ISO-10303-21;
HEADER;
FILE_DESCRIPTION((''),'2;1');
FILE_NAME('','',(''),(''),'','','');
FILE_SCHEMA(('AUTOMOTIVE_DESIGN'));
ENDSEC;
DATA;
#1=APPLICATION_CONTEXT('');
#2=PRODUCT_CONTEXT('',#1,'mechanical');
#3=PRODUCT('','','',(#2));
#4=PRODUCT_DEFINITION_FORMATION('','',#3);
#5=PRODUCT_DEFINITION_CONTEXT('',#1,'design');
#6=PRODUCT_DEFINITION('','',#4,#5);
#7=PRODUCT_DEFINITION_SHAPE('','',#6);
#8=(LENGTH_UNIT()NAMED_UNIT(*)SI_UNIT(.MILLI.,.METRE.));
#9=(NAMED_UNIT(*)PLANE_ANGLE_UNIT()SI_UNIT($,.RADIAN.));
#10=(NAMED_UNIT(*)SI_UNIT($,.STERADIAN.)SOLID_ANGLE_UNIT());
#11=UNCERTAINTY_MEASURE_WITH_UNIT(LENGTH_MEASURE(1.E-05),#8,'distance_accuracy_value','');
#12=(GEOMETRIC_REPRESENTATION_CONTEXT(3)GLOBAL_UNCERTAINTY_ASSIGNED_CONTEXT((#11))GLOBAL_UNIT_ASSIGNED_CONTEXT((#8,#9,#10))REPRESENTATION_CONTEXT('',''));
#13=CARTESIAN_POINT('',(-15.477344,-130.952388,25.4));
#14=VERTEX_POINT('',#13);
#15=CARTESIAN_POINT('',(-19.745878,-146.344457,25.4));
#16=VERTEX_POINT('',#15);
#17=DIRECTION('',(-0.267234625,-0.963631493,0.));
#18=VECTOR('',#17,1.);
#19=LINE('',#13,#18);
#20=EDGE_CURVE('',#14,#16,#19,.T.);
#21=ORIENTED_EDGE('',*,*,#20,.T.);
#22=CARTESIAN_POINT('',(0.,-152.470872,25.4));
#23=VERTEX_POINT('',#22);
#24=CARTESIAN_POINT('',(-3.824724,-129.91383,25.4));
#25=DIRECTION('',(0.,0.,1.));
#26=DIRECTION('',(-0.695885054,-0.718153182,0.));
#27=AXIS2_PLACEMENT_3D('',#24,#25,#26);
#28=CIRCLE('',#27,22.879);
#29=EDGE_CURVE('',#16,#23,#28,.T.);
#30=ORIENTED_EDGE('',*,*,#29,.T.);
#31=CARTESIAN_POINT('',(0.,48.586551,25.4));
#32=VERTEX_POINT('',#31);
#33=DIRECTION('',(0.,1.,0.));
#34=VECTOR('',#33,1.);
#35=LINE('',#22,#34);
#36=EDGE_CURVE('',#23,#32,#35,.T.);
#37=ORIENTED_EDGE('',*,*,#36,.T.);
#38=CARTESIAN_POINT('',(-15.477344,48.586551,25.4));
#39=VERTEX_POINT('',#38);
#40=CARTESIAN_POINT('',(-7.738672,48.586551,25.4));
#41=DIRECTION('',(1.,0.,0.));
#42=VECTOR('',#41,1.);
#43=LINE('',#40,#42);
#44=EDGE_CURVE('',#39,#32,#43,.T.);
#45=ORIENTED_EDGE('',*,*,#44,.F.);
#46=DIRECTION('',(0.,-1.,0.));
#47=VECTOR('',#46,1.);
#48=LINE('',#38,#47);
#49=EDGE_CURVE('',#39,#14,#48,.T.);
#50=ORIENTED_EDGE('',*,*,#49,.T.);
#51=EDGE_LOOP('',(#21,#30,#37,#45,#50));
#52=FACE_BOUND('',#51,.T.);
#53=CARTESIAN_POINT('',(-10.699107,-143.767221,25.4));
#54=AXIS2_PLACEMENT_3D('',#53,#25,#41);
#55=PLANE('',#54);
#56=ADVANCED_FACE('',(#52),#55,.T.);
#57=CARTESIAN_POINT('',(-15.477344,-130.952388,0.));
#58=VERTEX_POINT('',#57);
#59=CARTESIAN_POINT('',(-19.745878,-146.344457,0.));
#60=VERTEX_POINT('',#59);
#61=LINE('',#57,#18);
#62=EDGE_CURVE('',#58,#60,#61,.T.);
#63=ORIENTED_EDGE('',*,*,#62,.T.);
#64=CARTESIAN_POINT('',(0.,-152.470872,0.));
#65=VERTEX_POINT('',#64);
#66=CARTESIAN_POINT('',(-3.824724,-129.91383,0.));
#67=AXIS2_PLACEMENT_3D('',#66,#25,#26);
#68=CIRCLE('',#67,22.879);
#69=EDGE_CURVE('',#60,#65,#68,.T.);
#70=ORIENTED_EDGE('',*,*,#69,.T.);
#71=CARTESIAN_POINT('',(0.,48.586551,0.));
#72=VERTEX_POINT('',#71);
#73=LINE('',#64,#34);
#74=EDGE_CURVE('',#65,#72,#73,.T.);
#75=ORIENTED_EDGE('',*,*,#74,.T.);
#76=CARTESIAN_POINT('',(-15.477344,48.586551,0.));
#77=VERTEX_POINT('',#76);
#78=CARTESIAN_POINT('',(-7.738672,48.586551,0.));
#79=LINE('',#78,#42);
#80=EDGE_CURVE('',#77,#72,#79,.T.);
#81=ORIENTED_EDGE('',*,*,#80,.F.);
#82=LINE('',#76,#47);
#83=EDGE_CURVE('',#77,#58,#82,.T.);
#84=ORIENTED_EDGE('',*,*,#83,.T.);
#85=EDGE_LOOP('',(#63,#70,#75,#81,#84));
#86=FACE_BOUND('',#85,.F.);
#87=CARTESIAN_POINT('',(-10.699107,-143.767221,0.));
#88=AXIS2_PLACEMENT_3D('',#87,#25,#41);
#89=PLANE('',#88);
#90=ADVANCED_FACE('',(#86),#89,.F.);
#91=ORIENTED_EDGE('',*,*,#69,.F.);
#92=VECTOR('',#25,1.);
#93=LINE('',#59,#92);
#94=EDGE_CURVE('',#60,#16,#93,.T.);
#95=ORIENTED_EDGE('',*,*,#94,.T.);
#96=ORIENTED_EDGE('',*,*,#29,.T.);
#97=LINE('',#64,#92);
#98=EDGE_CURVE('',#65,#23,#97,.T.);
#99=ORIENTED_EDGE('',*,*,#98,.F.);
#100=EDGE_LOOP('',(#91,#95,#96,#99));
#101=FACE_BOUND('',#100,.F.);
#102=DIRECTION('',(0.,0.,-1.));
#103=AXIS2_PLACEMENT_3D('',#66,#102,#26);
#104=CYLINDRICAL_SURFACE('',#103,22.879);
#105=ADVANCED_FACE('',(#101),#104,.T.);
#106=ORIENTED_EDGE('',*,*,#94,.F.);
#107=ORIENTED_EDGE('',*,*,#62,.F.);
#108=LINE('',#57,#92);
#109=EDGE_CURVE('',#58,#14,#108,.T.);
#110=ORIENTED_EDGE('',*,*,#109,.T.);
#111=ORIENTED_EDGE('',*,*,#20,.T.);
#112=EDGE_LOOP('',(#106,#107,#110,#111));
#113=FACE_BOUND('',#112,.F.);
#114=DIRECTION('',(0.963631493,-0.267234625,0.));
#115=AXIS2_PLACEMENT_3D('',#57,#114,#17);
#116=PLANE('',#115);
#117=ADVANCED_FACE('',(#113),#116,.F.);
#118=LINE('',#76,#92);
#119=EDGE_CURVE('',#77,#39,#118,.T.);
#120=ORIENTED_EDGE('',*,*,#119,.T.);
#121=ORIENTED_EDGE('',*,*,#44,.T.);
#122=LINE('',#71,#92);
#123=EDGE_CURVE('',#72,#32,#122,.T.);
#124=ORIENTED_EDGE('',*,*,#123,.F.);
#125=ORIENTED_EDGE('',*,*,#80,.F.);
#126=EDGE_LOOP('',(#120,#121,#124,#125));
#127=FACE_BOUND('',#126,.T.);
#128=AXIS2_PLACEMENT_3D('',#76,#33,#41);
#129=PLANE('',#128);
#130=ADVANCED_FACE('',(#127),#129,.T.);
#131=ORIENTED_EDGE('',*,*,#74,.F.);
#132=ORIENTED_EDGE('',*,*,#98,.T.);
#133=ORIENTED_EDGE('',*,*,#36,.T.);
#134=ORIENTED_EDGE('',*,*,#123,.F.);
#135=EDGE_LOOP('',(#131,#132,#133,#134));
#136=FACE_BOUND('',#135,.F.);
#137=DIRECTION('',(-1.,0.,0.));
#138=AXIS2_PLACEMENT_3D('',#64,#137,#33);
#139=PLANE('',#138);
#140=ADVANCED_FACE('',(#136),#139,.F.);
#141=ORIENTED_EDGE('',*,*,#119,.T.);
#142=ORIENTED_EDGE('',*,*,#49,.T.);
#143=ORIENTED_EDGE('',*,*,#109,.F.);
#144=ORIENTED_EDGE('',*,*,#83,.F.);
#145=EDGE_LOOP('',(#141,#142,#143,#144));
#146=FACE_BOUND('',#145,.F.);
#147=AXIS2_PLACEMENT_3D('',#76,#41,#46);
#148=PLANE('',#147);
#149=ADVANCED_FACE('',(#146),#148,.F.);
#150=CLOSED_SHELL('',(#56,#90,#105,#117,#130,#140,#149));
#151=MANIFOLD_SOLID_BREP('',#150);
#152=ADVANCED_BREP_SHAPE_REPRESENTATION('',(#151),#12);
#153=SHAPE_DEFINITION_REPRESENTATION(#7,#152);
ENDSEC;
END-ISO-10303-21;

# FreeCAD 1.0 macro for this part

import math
import FreeCAD as App
import Part
import Sketcher
Q = App.Units.Quantity

doc = App.newDocument("Part")
body = doc.addObject("PartDesign::Body", "Body")

# Sketch on XY plane
sketch1 = body.newObject("Sketcher::SketchObject", "Sketch")
sketch1.AttachmentSupport = (doc.getObject("XY_Plane"), [""])
sketch1.MapMode = "FlatFace"
sketch1.addGeometry([
    Part.LineSegment(App.Vector(-15, -131, 0), App.Vector(-20, -146, 0)),  # 0
    Part.ArcOfCircle(Part.Circle(App.Vector(-4, -130, 0), App.Vector(0, 0, 1), 23), math.radians(-134), math.radians(-80)),  # 1
    Part.LineSegment(App.Vector(0, -152, 0), App.Vector(0, 49, 0)),  # 2
    Part.LineSegment(App.Vector(0, 49, 0), App.Vector(-15, 49, 0)),  # 3
    Part.LineSegment(App.Vector(-15, 49, 0), App.Vector(-15, -131, 0)),  # 4
], False)
sketch1.addConstraint([
    Sketcher.Constraint("Coincident", 0, 2, 1, 1),
    Sketcher.Constraint("Coincident", 1, 2, 2, 1),
    Sketcher.Constraint("Coincident", 2, 2, 3, 1),
    Sketcher.Constraint("Coincident", 3, 2, 4, 1),
    Sketcher.Constraint("Coincident", 4, 2, 0, 1),
    Sketcher.Constraint("Vertical", 2),
    Sketcher.Constraint("Horizontal", 3),
    Sketcher.Constraint("Vertical", 4),
    Sketcher.Constraint("PointOnObject", 1, 2, -2),
    Sketcher.Constraint("Radius", 1, Q("22.879 mm")),
    Sketcher.Constraint("DistanceY", 4, 2, 4, 1, Q("179.538939 mm")),
    Sketcher.Constraint("DistanceX", 3, 2, 3, 1, Q("15.477344 mm")),
    Sketcher.Constraint("DistanceY", 2, 1, 2, 2, Q("201.057423 mm")),
    Sketcher.Constraint("DistanceY", 1, 3, -1, 1, Q("129.91383 mm")),
    Sketcher.Constraint("DistanceX", 0, 2, -1, 1, Q("19.745878 mm")),
    Sketcher.Constraint("DistanceY", -1, 1, 2, 2, Q("48.586551 mm")),
])
pad1 = body.newObject("PartDesign::Pad", "Pad")
pad1.Profile = sketch1
pad1.Length = Q("1 in")

doc.recompute()
